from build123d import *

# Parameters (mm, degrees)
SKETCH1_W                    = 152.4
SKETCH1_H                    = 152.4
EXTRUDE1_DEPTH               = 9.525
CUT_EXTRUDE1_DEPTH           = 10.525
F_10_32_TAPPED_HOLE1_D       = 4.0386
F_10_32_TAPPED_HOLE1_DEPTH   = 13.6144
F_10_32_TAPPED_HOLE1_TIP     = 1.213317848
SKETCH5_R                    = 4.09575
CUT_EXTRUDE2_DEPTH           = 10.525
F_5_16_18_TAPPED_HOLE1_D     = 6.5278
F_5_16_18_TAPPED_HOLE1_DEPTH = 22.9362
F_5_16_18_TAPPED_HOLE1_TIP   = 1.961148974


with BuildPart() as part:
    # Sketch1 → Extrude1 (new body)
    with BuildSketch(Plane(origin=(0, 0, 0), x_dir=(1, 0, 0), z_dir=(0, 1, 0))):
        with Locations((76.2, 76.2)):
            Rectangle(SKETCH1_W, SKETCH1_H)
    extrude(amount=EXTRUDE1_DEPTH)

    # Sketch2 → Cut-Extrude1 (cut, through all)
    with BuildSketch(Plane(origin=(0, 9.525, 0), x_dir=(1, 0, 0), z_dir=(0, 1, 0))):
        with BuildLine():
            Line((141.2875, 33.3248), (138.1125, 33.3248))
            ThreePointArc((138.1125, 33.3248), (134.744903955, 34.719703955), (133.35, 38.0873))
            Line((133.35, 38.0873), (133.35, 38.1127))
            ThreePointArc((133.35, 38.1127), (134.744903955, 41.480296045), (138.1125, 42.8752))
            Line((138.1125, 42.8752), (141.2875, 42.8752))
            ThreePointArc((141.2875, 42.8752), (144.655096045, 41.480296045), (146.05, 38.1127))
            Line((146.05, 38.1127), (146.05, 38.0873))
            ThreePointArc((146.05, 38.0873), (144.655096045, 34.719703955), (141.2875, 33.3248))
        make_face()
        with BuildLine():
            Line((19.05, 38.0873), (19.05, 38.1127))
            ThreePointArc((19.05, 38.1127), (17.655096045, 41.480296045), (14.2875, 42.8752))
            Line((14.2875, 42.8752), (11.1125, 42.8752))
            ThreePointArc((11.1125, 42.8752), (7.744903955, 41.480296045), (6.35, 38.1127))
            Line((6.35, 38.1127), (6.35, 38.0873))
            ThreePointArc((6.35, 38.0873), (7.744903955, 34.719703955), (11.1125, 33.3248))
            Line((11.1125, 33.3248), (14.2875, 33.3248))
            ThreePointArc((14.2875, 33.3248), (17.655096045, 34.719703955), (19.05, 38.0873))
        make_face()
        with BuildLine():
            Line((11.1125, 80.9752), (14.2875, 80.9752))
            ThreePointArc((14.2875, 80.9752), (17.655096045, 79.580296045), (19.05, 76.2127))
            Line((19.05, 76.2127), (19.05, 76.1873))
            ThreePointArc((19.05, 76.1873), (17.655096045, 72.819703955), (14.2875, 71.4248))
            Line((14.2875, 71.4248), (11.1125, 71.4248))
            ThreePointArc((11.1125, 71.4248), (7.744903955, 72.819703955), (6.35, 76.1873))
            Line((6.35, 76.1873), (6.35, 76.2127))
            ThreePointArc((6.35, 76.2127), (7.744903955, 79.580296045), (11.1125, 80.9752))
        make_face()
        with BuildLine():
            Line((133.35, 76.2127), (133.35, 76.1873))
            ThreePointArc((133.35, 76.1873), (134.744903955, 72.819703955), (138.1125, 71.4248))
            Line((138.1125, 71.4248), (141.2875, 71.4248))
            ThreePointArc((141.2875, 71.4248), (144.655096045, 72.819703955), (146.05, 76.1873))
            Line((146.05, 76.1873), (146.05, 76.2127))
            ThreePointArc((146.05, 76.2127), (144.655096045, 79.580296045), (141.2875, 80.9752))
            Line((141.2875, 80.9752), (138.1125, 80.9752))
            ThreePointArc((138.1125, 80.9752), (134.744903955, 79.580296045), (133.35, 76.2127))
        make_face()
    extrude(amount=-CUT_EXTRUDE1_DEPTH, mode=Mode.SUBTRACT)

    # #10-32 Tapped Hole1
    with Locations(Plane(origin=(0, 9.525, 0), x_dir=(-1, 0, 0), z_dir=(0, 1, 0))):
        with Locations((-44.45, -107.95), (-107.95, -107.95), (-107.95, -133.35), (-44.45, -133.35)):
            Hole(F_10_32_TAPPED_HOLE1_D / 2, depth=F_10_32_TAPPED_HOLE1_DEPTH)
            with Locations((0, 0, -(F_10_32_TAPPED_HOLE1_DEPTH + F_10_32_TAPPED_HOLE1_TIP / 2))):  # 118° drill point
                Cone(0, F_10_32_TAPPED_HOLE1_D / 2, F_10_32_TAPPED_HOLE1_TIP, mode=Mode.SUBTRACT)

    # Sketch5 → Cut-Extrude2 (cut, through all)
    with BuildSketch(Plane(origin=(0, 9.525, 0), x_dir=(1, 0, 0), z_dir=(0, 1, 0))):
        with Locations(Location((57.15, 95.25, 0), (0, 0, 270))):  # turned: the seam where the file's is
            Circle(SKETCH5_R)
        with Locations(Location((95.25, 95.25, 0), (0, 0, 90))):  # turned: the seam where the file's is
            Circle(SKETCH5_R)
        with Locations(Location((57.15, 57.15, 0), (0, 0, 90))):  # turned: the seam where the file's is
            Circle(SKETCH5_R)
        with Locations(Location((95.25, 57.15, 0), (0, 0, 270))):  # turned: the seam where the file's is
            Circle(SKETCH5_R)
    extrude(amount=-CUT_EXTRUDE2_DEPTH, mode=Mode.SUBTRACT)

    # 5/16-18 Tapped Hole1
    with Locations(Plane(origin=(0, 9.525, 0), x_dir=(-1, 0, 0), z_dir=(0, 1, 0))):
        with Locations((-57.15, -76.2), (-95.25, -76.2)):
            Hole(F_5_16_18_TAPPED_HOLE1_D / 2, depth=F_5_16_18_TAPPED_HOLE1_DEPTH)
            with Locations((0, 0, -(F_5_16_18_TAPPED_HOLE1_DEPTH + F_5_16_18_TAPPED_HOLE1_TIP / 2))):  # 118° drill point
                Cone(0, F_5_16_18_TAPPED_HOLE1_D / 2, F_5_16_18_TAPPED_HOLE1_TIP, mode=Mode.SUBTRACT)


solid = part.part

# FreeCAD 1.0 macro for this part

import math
import FreeCAD as App
import Part
import Sketcher
from FreeCAD import Vector
Q = App.Units.Quantity


def add_polygon(sketch, points):
    """Adds a closed chain of lines whose ends are joined by coincident constraints."""
    first, n = sketch.GeometryCount, len(points)
    for a, b in zip(points, points[1:] + points[:1]):
        sketch.addGeometry(Part.LineSegment(App.Vector(*a, 0), App.Vector(*b, 0)), False)
    for i in range(n):
        sketch.addConstraint(Sketcher.Constraint("Coincident", first + i, 2, first + (i + 1) % n, 1))

doc = App.newDocument("Part")
params = doc.addObject("Spreadsheet::Sheet", "Params")
for row, (alias, value) in enumerate([
    ("sketch1_width", "6 in"),
    ("pad1_length", "0.375 in"),
    ("sketch2_radius", "0.1875 in"),
    ("sketch2_width", "0.125 in"),
    ("sketch2_height", "0.001 in"),
    ("sketch3_diameter", "0.159 in"),
    ("hole_diameter", "0.159 in"),
    ("hole_depth", "0.536 in"),
    ("sketch5_diameter", "0.257 in"),
    ("hole2_diameter", "0.257 in"),
    ("hole2_depth", "0.903 in"),
], start=1):
    params.set(f"A{row}", alias)
    params.set(f"B{row}", "=" + value)
    params.setAlias(f"B{row}", alias)

body = doc.addObject("PartDesign::Body", "Body")

# Sketch on XZ plane
sketch1 = body.newObject("Sketcher::SketchObject", "Sketch")
sketch1.AttachmentSupport = (doc.getObject("XZ_Plane"), [""])
sketch1.MapMode = "FlatFace"
add_polygon(sketch1, [(0, -152), (0, 0), (152, 0), (152, -152)])  # lines 0-3
sketch1.addConstraint([
    Sketcher.Constraint("Vertical", 0),
    Sketcher.Constraint("Horizontal", 1),
    Sketcher.Constraint("Vertical", 2),
    Sketcher.Constraint("Horizontal", 3),
    Sketcher.Constraint("Coincident", 0, 2, -1, 1),
    Sketcher.Constraint("Equal", 3, 0),
    Sketcher.Constraint("DistanceX", 1, 1, 1, 2, Q("6 in")),
])
sketch1.setExpression("Constraints[10]", "Params.sketch1_width")
pad1 = body.newObject("PartDesign::Pad", "Pad")
pad1.Profile = sketch1
pad1.setExpression("Length", "Params.pad1_length")
pad1.Reversed = True

# Sketch on XZ plane
sketch2 = body.newObject("Sketcher::SketchObject", "Sketch001")
sketch2.AttachmentSupport = (doc.getObject("XZ_Plane"), [""])
sketch2.MapMode = "FlatFace"
sketch2.AttachmentOffset = App.Placement(Vector(0, 0, -0.375 * 25.4), App.Rotation())
sketch2.addGeometry([
    Part.LineSegment(Vector(138.113, -33.325, 0), Vector(141.287, -33.325, 0)),  # 0
    Part.ArcOfCircle(Part.Circle(Vector(141.287, -38.087, 0), Vector(0, 0, 1), 4.763), math.radians(0), math.radians(90)),  # 1
    Part.LineSegment(Vector(146.05, -38.087, 0), Vector(146.05, -38.113, 0)),  # 2
    Part.ArcOfCircle(Part.Circle(Vector(141.287, -38.113, 0), Vector(0, 0, 1), 4.763), math.radians(-90), math.radians(0)),  # 3
    Part.LineSegment(Vector(141.287, -42.875, 0), Vector(138.113, -42.875, 0)),  # 4
    Part.ArcOfCircle(Part.Circle(Vector(138.113, -38.113, 0), Vector(0, 0, 1), 4.763), math.radians(-180), math.radians(-90)),  # 5
    Part.LineSegment(Vector(133.35, -38.113, 0), Vector(133.35, -38.087, 0)),  # 6
    Part.ArcOfCircle(Part.Circle(Vector(138.113, -38.087, 0), Vector(0, 0, 1), 4.763), math.radians(90), math.radians(180)),  # 7
    Part.LineSegment(Vector(19.05, -38.087, 0), Vector(19.05, -38.113, 0)),  # 8
    Part.ArcOfCircle(Part.Circle(Vector(14.287, -38.113, 0), Vector(0, 0, 1), 4.763), math.radians(-90), math.radians(0)),  # 9
    Part.LineSegment(Vector(14.287, -42.875, 0), Vector(11.113, -42.875, 0)),  # 10
    Part.ArcOfCircle(Part.Circle(Vector(11.113, -38.113, 0), Vector(0, 0, 1), 4.763), math.radians(-180), math.radians(-90)),  # 11
    Part.LineSegment(Vector(6.35, -38.113, 0), Vector(6.35, -38.087, 0)),  # 12
    Part.ArcOfCircle(Part.Circle(Vector(11.113, -38.087, 0), Vector(0, 0, 1), 4.763), math.radians(90), math.radians(180)),  # 13
    Part.LineSegment(Vector(11.113, -33.325, 0), Vector(14.287, -33.325, 0)),  # 14
    Part.ArcOfCircle(Part.Circle(Vector(14.287, -38.087, 0), Vector(0, 0, 1), 4.763), math.radians(0), math.radians(90)),  # 15
    Part.LineSegment(Vector(14.287, -80.975, 0), Vector(11.113, -80.975, 0)),  # 16
    Part.ArcOfCircle(Part.Circle(Vector(11.113, -76.213, 0), Vector(0, 0, 1), 4.763), math.radians(-180), math.radians(-90)),  # 17
    Part.LineSegment(Vector(6.35, -76.213, 0), Vector(6.35, -76.187, 0)),  # 18
    Part.ArcOfCircle(Part.Circle(Vector(11.113, -76.187, 0), Vector(0, 0, 1), 4.763), math.radians(90), math.radians(180)),  # 19
    Part.LineSegment(Vector(11.113, -71.425, 0), Vector(14.287, -71.425, 0)),  # 20
    Part.ArcOfCircle(Part.Circle(Vector(14.287, -76.187, 0), Vector(0, 0, 1), 4.763), math.radians(0), math.radians(90)),  # 21
    Part.LineSegment(Vector(19.05, -76.187, 0), Vector(19.05, -76.213, 0)),  # 22
    Part.ArcOfCircle(Part.Circle(Vector(14.287, -76.213, 0), Vector(0, 0, 1), 4.763), math.radians(-90), math.radians(0)),  # 23
    Part.LineSegment(Vector(133.35, -76.213, 0), Vector(133.35, -76.187, 0)),  # 24
    Part.ArcOfCircle(Part.Circle(Vector(138.113, -76.187, 0), Vector(0, 0, 1), 4.763), math.radians(90), math.radians(180)),  # 25
    Part.LineSegment(Vector(138.113, -71.425, 0), Vector(141.287, -71.425, 0)),  # 26
    Part.ArcOfCircle(Part.Circle(Vector(141.287, -76.187, 0), Vector(0, 0, 1), 4.763), math.radians(0), math.radians(90)),  # 27
    Part.LineSegment(Vector(146.05, -76.187, 0), Vector(146.05, -76.213, 0)),  # 28
    Part.ArcOfCircle(Part.Circle(Vector(141.287, -76.213, 0), Vector(0, 0, 1), 4.763), math.radians(-90), math.radians(0)),  # 29
    Part.LineSegment(Vector(141.287, -80.975, 0), Vector(138.113, -80.975, 0)),  # 30
    Part.ArcOfCircle(Part.Circle(Vector(138.113, -76.213, 0), Vector(0, 0, 1), 4.763), math.radians(-180), math.radians(-90)),  # 31
], False)
sketch2.addConstraint([
    Sketcher.Constraint("Tangent", 0, 2, 1, 2),
    Sketcher.Constraint("Tangent", 1, 1, 2, 1),
    Sketcher.Constraint("Tangent", 2, 2, 3, 2),
    Sketcher.Constraint("Tangent", 3, 1, 4, 1),
    Sketcher.Constraint("Tangent", 4, 2, 5, 2),
    Sketcher.Constraint("Tangent", 5, 1, 6, 1),
    Sketcher.Constraint("Tangent", 6, 2, 7, 2),
    Sketcher.Constraint("Tangent", 7, 1, 0, 1),
    Sketcher.Constraint("Tangent", 8, 2, 9, 2),
    Sketcher.Constraint("Tangent", 9, 1, 10, 1),
    Sketcher.Constraint("Tangent", 10, 2, 11, 2),
    Sketcher.Constraint("Tangent", 11, 1, 12, 1),
    Sketcher.Constraint("Tangent", 12, 2, 13, 2),
    Sketcher.Constraint("Tangent", 13, 1, 14, 1),
    Sketcher.Constraint("Tangent", 14, 2, 15, 2),
    Sketcher.Constraint("Tangent", 15, 1, 8, 1),
    Sketcher.Constraint("Tangent", 16, 2, 17, 2),
    Sketcher.Constraint("Tangent", 17, 1, 18, 1),
    Sketcher.Constraint("Tangent", 18, 2, 19, 2),
    Sketcher.Constraint("Tangent", 19, 1, 20, 1),
    Sketcher.Constraint("Tangent", 20, 2, 21, 2),
    Sketcher.Constraint("Tangent", 21, 1, 22, 1),
    Sketcher.Constraint("Tangent", 22, 2, 23, 2),
    Sketcher.Constraint("Tangent", 23, 1, 16, 1),
    Sketcher.Constraint("Tangent", 24, 2, 25, 2),
    Sketcher.Constraint("Tangent", 25, 1, 26, 1),
    Sketcher.Constraint("Tangent", 26, 2, 27, 2),
    Sketcher.Constraint("Tangent", 27, 1, 28, 1),
    Sketcher.Constraint("Tangent", 28, 2, 29, 2),
    Sketcher.Constraint("Tangent", 29, 1, 30, 1),
    Sketcher.Constraint("Tangent", 30, 2, 31, 2),
    Sketcher.Constraint("Tangent", 31, 1, 24, 1),
    Sketcher.Constraint("Horizontal", 0),
    Sketcher.Constraint("Vertical", 2),
    Sketcher.Constraint("Horizontal", 4),
    Sketcher.Constraint("Vertical", 6),
    Sketcher.Constraint("Vertical", 8),
    Sketcher.Constraint("Horizontal", 10),
    Sketcher.Constraint("Vertical", 12),
    Sketcher.Constraint("Horizontal", 14),
    Sketcher.Constraint("Horizontal", 16),
    Sketcher.Constraint("Vertical", 18),
    Sketcher.Constraint("Horizontal", 20),
    Sketcher.Constraint("Vertical", 22),
    Sketcher.Constraint("Vertical", 24),
    Sketcher.Constraint("Horizontal", 26),
    Sketcher.Constraint("Vertical", 28),
    Sketcher.Constraint("Horizontal", 30),
    Sketcher.Constraint("Equal", 1, 3),
    Sketcher.Constraint("Equal", 3, 5),
    Sketcher.Constraint("Equal", 5, 7),
    Sketcher.Constraint("Equal", 7, 9),
    Sketcher.Constraint("Equal", 9, 11),
    Sketcher.Constraint("Equal", 11, 13),
    Sketcher.Constraint("Equal", 13, 15),
    Sketcher.Constraint("Equal", 15, 17),
    Sketcher.Constraint("Equal", 17, 19),
    Sketcher.Constraint("Equal", 19, 21),
    Sketcher.Constraint("Equal", 21, 23),
    Sketcher.Constraint("Equal", 23, 25),
    Sketcher.Constraint("Equal", 25, 27),
    Sketcher.Constraint("Equal", 27, 29),
    Sketcher.Constraint("Equal", 29, 31),
    Sketcher.Constraint("Horizontal", 5, 3, 9, 3),
    Sketcher.Constraint("Horizontal", 7, 3, 13, 3),
    Sketcher.Constraint("Horizontal", 21, 3, 25, 3),
    Sketcher.Constraint("Horizontal", 23, 3, 29, 3),
    Sketcher.Constraint("Vertical", 13, 3, 17, 3),
    Sketcher.Constraint("Vertical", 15, 3, 21, 3),
    Sketcher.Constraint("Vertical", 7, 3, 25, 3),
    Sketcher.Constraint("Vertical", 3, 3, 27, 3),
    Sketcher.Constraint("Equal", 4, 10),
    Sketcher.Constraint("Equal", 12, 18),
    Sketcher.Constraint("Radius", 1, Q("0.1875 in")),
    Sketcher.Constraint("DistanceX", 9, 3, 3, 3, Q("5 in")),
    Sketcher.Constraint("DistanceY", 17, 3, 11, 3, Q("1.5 in")),
    Sketcher.Constraint("DistanceX", 0, 1, 0, 2, Q("0.125 in")),
    Sketcher.Constraint("DistanceY", 2, 2, 2, 1, Q("0.001 in")),
    Sketcher.Constraint("DistanceX", -1, 1, 1, 1, Q("5.75 in")),
    Sketcher.Constraint("DistanceY", 0, 2, -1, 1, Q("1.312 in")),
])
sketch2.setExpression("Constraints[73]", "Params.sketch2_radius")
sketch2.setExpression("Constraints[76]", "Params.sketch2_width")
sketch2.setExpression("Constraints[77]", "Params.sketch2_height")
pocket1 = body.newObject("PartDesign::Pocket", "Pocket")
pocket1.Profile = sketch2
pocket1.Type = "ThroughAll"
pocket1.Reversed = True

# Sketch on XZ plane
sketch3 = body.newObject("Sketcher::SketchObject", "Sketch002")
sketch3.AttachmentSupport = (doc.getObject("XZ_Plane"), [""])
sketch3.MapMode = "FlatFace"
sketch3.AttachmentOffset = App.Placement(Vector(0, 0, -0.375 * 25.4), App.Rotation())
sketch3.addGeometry([
    Part.Circle(Vector(44.5, -108, 0), Vector(0, 0, 1), 2),
    Part.Circle(Vector(108, -108, 0), Vector(0, 0, 1), 2),
    Part.Circle(Vector(108, -133.3, 0), Vector(0, 0, 1), 2),
    Part.Circle(Vector(44.5, -133.3, 0), Vector(0, 0, 1), 2),
], False)
sketch3.addConstraint([
    Sketcher.Constraint("Equal", 0, 1),
    Sketcher.Constraint("Equal", 1, 2),
    Sketcher.Constraint("Equal", 2, 3),
    Sketcher.Constraint("Horizontal", 0, 3, 1, 3),
    Sketcher.Constraint("Horizontal", 2, 3, 3, 3),
    Sketcher.Constraint("Vertical", 1, 3, 2, 3),
    Sketcher.Constraint("Vertical", 0, 3, 3, 3),
    Sketcher.Constraint("Diameter", 0, Q("0.159 in")),
    Sketcher.Constraint("DistanceY", 2, 3, 1, 3, Q("1 in")),
    Sketcher.Constraint("DistanceX", 0, 3, 1, 3, Q("2.5 in")),
    Sketcher.Constraint("DistanceX", -1, 1, 0, 3, Q("1.75 in")),
    Sketcher.Constraint("DistanceY", 0, 3, -1, 1, Q("4.25 in")),
])
sketch3.setExpression("Constraints[7]", "Params.sketch3_diameter")
doc.recompute()
hole = body.newObject("PartDesign::Hole", "Hole")
hole.Profile = sketch3
hole.ThreadType = "None"
hole.setExpression("Diameter", "Params.hole_diameter")
hole.DepthType = "Dimension"
hole.setExpression("Depth", "Params.hole_depth")
hole.DrillPoint = "Angled"
hole.DrillPointAngle = 118
hole.Reversed = True

# Sketch on XZ plane
sketch4 = body.newObject("Sketcher::SketchObject", "Sketch003")
sketch4.AttachmentSupport = (doc.getObject("XZ_Plane"), [""])
sketch4.MapMode = "FlatFace"
sketch4.AttachmentOffset = App.Placement(Vector(0, 0, -0.375 * 25.4), App.Rotation())
sketch4.addGeometry([
    Part.Circle(Vector(57.1, -95.2, 0), Vector(0, 0, 1), 4.1),
    Part.Circle(Vector(95.2, -95.2, 0), Vector(0, 0, 1), 4.1),
    Part.Circle(Vector(57.1, -57.1, 0), Vector(0, 0, 1), 4.1),
    Part.Circle(Vector(95.2, -57.1, 0), Vector(0, 0, 1), 4.1),
], False)
sketch4.addConstraint([
    Sketcher.Constraint("Equal", 0, 1),
    Sketcher.Constraint("Equal", 1, 2),
    Sketcher.Constraint("Equal", 2, 3),
    Sketcher.Constraint("Horizontal", 0, 3, 1, 3),
    Sketcher.Constraint("Horizontal", 2, 3, 3, 3),
    Sketcher.Constraint("Vertical", 0, 3, 2, 3),
    Sketcher.Constraint("Vertical", 1, 3, 3, 3),
    Sketcher.Constraint("Diameter", 0, Q("0.3225 in")),
    Sketcher.Constraint("DistanceX", 0, 3, 1, 3, Q("1.5 in")),
    Sketcher.Constraint("DistanceY", 0, 3, 2, 3, Q("1.5 in")),
    Sketcher.Constraint("DistanceX", -1, 1, 0, 3, Q("2.25 in")),
    Sketcher.Constraint("DistanceY", 0, 3, -1, 1, Q("3.75 in")),
])
pocket2 = body.newObject("PartDesign::Pocket", "Pocket001")
pocket2.Profile = sketch4
pocket2.Type = "ThroughAll"
pocket2.Reversed = True

# Sketch on XZ plane
sketch5 = body.newObject("Sketcher::SketchObject", "Sketch004")
sketch5.AttachmentSupport = (doc.getObject("XZ_Plane"), [""])
sketch5.MapMode = "FlatFace"
sketch5.AttachmentOffset = App.Placement(Vector(0, 0, -0.375 * 25.4), App.Rotation())
sketch5.addGeometry([
    Part.Circle(Vector(57.1, -76.2, 0), Vector(0, 0, 1), 3.3),
    Part.Circle(Vector(95.2, -76.2, 0), Vector(0, 0, 1), 3.3),
], False)
sketch5.addConstraint([
    Sketcher.Constraint("Equal", 0, 1),
    Sketcher.Constraint("Horizontal", 0, 3, 1, 3),
    Sketcher.Constraint("Diameter", 0, Q("0.257 in")),
    Sketcher.Constraint("DistanceY", 0, 3, -1, 1, Q("3 in")),
    Sketcher.Constraint("DistanceX", 0, 3, 1, 3, Q("1.5 in")),
    Sketcher.Constraint("DistanceX", -1, 1, 0, 3, Q("2.25 in")),
])
sketch5.setExpression("Constraints[2]", "Params.sketch5_diameter")
doc.recompute()
hole2 = body.newObject("PartDesign::Hole", "Hole001")
hole2.Profile = sketch5
hole2.ThreadType = "None"
hole2.setExpression("Diameter", "Params.hole2_diameter")
hole2.DepthType = "Dimension"
hole2.setExpression("Depth", "Params.hole2_depth")
hole2.DrillPoint = "Angled"
hole2.DrillPointAngle = 118
hole2.Reversed = True

doc.recompute()
